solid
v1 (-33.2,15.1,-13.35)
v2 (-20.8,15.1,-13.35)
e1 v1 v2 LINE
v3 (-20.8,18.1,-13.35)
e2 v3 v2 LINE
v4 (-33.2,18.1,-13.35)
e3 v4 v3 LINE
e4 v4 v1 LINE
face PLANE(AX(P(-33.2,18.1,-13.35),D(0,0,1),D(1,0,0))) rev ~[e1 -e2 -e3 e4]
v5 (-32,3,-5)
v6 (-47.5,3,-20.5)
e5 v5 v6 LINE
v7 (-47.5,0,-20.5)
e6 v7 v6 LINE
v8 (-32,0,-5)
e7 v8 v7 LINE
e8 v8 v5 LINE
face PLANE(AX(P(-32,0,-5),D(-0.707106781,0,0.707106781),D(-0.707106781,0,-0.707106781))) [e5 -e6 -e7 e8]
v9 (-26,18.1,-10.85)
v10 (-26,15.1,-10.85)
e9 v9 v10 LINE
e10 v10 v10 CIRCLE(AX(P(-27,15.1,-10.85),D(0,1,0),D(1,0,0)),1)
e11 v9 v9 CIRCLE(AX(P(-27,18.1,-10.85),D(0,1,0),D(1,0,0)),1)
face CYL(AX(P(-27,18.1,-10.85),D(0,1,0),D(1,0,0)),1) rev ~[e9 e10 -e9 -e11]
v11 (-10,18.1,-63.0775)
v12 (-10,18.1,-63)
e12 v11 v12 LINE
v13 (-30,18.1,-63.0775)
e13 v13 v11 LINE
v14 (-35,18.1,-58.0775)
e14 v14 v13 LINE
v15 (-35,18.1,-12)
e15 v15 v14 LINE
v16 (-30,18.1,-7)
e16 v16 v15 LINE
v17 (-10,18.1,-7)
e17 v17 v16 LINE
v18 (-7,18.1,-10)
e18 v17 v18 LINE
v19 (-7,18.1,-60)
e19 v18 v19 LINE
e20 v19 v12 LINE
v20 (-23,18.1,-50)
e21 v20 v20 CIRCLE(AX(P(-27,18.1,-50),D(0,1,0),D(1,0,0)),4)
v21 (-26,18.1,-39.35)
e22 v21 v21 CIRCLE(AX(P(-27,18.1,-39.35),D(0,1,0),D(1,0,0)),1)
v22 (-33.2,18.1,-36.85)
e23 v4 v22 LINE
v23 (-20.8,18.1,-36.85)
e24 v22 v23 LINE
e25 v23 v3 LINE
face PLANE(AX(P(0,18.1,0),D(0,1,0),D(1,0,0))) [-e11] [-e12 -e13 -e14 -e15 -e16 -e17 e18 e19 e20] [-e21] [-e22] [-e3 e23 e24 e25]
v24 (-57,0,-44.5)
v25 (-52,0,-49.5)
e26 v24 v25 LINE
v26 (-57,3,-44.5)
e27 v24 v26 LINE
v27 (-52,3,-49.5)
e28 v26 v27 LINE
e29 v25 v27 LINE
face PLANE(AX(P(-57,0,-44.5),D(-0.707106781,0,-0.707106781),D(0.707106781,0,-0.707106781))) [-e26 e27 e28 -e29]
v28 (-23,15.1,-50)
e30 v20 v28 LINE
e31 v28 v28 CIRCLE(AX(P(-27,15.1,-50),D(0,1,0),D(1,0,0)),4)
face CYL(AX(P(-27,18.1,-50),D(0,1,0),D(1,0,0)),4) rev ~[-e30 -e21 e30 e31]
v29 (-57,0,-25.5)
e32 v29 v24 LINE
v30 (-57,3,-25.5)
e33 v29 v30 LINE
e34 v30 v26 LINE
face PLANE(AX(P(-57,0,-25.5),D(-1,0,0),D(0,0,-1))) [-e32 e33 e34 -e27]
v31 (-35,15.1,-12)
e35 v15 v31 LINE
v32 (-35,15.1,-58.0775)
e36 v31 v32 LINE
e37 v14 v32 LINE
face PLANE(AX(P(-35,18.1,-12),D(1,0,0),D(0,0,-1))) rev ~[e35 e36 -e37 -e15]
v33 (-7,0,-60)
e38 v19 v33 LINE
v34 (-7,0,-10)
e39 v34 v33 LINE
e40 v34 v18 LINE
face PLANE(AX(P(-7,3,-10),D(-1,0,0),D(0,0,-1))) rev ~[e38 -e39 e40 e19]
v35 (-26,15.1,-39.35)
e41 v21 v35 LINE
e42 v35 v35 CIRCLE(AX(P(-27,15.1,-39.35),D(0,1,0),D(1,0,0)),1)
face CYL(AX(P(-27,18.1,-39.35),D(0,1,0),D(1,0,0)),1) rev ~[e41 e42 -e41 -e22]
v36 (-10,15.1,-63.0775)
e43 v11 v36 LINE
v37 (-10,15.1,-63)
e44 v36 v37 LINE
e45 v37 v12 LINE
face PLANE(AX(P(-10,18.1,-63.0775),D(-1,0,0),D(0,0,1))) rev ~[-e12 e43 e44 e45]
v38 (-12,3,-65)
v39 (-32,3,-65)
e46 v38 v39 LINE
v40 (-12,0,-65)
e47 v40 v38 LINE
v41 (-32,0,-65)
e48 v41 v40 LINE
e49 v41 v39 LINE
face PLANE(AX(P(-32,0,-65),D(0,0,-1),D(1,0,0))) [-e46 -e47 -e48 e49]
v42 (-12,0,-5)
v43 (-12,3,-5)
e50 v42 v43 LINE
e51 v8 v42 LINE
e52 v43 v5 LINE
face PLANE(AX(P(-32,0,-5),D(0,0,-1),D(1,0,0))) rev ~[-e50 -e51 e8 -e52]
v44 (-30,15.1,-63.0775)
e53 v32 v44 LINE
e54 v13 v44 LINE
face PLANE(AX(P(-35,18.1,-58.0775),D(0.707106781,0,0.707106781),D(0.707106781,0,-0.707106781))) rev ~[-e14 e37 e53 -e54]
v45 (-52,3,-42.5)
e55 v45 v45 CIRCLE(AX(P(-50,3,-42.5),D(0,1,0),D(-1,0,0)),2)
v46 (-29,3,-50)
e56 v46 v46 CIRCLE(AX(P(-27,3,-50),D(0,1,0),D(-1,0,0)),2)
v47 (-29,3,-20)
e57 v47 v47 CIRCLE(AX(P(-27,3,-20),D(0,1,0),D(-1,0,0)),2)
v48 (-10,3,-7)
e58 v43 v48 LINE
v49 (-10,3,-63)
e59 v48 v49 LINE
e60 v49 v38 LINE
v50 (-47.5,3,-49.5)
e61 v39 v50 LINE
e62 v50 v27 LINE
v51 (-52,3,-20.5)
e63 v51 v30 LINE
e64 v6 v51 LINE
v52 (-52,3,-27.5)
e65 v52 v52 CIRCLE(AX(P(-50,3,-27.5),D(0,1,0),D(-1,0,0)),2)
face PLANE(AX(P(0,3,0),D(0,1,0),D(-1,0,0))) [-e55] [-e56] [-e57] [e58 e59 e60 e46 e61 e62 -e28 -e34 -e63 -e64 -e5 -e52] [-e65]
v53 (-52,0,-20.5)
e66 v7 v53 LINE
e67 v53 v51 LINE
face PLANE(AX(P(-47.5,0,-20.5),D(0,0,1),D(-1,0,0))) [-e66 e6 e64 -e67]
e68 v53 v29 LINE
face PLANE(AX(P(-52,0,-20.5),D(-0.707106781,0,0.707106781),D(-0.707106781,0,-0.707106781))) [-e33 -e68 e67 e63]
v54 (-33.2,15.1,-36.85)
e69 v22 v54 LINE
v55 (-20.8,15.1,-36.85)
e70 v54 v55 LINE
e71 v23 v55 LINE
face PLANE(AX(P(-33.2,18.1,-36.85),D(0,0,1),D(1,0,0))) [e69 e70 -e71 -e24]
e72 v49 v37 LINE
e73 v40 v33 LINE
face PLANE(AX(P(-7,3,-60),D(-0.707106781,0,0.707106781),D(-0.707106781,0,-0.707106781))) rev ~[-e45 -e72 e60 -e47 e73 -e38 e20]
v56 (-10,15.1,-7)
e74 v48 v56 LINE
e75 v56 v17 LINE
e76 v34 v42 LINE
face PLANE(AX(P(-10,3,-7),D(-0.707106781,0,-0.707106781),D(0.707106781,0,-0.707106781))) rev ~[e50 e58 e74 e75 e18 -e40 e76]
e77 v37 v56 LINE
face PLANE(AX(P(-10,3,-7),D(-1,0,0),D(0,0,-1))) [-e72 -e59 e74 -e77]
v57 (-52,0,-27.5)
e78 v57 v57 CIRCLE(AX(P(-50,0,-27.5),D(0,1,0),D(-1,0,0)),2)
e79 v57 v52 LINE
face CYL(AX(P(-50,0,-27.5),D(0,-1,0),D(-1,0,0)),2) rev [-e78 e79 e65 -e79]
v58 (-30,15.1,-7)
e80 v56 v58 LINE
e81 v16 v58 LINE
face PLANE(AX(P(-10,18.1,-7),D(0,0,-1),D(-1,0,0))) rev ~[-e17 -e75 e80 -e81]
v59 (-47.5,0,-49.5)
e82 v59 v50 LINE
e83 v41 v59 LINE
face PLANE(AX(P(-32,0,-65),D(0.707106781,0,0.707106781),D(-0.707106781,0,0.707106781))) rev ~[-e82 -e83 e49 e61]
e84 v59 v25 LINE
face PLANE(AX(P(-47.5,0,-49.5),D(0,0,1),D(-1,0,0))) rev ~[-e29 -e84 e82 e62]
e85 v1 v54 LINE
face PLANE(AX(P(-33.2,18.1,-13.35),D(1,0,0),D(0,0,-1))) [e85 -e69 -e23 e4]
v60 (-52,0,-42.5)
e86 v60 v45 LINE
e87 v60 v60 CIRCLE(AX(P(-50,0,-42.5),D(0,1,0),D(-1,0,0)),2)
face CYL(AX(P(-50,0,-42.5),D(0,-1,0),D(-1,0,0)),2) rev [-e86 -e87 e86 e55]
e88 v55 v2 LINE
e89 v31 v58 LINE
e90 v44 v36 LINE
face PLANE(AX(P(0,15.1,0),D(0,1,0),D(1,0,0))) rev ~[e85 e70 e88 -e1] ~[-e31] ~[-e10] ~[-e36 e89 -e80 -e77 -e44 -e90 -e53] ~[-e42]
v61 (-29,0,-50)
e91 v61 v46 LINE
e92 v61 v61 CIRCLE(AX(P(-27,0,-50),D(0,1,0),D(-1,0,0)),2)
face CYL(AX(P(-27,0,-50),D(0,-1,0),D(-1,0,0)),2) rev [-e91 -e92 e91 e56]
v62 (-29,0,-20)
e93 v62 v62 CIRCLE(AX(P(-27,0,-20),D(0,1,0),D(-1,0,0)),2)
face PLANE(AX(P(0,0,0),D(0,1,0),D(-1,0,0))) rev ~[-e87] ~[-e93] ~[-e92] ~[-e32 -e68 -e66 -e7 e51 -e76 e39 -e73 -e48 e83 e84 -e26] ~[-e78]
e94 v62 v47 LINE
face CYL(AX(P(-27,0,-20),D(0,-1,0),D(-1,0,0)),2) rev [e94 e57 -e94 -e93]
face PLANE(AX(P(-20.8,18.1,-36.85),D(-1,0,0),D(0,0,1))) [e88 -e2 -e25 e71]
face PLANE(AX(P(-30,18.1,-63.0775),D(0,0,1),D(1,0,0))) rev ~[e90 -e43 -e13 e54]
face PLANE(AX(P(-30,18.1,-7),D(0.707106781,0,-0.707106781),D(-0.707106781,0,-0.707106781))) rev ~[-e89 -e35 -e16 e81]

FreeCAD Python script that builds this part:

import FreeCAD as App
import Part
import Sketcher

V = App.Vector

doc = App.newDocument("Part")
body = doc.addObject("PartDesign::Body", "Body")

# Sketch on XZ plane
sketch1 = body.newObject("Sketcher::SketchObject", "Sketch")
sketch1.AttachmentSupport = (doc.getObject("XZ_Plane"), [""])
sketch1.MapMode = "FlatFace"
sketch1.addGeometry(Part.LineSegment(V(-32, -5, 0), V(-12, -5, 0)), False)
sketch1.addGeometry(Part.LineSegment(V(-12, -5, 0), V(-7, -10, 0)), False)
sketch1.addGeometry(Part.LineSegment(V(-7, -10, 0), V(-7, -60, 0)), False)
sketch1.addGeometry(Part.LineSegment(V(-7, -60, 0), V(-12, -65, 0)), False)
sketch1.addGeometry(Part.LineSegment(V(-12, -65, 0), V(-32, -65, 0)), False)
sketch1.addGeometry(Part.LineSegment(V(-32, -65, 0), V(-47.5, -49.5, 0)), False)
sketch1.addGeometry(Part.LineSegment(V(-47.5, -49.5, 0), V(-52, -49.5, 0)), False)
sketch1.addGeometry(Part.LineSegment(V(-52, -49.5, 0), V(-57, -44.5, 0)), False)
sketch1.addGeometry(Part.LineSegment(V(-57, -44.5, 0), V(-57, -25.5, 0)), False)
sketch1.addGeometry(Part.LineSegment(V(-57, -25.5, 0), V(-52, -20.5, 0)), False)
sketch1.addGeometry(Part.LineSegment(V(-52, -20.5, 0), V(-47.5, -20.5, 0)), False)
sketch1.addGeometry(Part.LineSegment(V(-47.5, -20.5, 0), V(-32, -5, 0)), False)
sketch1.addGeometry(Part.Circle(V(-27, -50, 0), V(0, 0, 1), 2), False)
sketch1.addGeometry(Part.Circle(V(-50, -42.5, 0), V(0, 0, 1), 2), False)
sketch1.addGeometry(Part.Circle(V(-27, -20, 0), V(0, 0, 1), 2), False)
sketch1.addGeometry(Part.Circle(V(-50, -27.5, 0), V(0, 0, 1), 2), False)
sketch1.addConstraint(Sketcher.Constraint("Coincident", 0, 2, 1, 1))
sketch1.addConstraint(Sketcher.Constraint("Coincident", 1, 2, 2, 1))
sketch1.addConstraint(Sketcher.Constraint("Coincident", 2, 2, 3, 1))
sketch1.addConstraint(Sketcher.Constraint("Coincident", 3, 2, 4, 1))
sketch1.addConstraint(Sketcher.Constraint("Coincident", 4, 2, 5, 1))
sketch1.addConstraint(Sketcher.Constraint("Coincident", 5, 2, 6, 1))
sketch1.addConstraint(Sketcher.Constraint("Coincident", 6, 2, 7, 1))
sketch1.addConstraint(Sketcher.Constraint("Coincident", 7, 2, 8, 1))
sketch1.addConstraint(Sketcher.Constraint("Coincident", 8, 2, 9, 1))
sketch1.addConstraint(Sketcher.Constraint("Coincident", 9, 2, 10, 1))
sketch1.addConstraint(Sketcher.Constraint("Coincident", 10, 2, 11, 1))
sketch1.addConstraint(Sketcher.Constraint("Coincident", 11, 2, 0, 1))
sketch1.addConstraint(Sketcher.Constraint("Horizontal", 0))
sketch1.addConstraint(Sketcher.Constraint("Vertical", 2))
sketch1.addConstraint(Sketcher.Constraint("Horizontal", 4))
sketch1.addConstraint(Sketcher.Constraint("Horizontal", 6))
sketch1.addConstraint(Sketcher.Constraint("Vertical", 8))
sketch1.addConstraint(Sketcher.Constraint("Horizontal", 10))
sketch1.addConstraint(Sketcher.Constraint("Equal", 12, 13))
sketch1.addConstraint(Sketcher.Constraint("Equal", 13, 14))
sketch1.addConstraint(Sketcher.Constraint("Equal", 14, 15))
sketch1.addConstraint(Sketcher.Constraint("Perpendicular", 1, 3))
sketch1.addConstraint(Sketcher.Constraint("Perpendicular", 3, 5))
sketch1.addConstraint(Sketcher.Constraint("Parallel", 5, 7))
sketch1.addConstraint(Sketcher.Constraint("Perpendicular", 7, 9))
sketch1.addConstraint(Sketcher.Constraint("Parallel", 9, 11))
sketch1.addConstraint(Sketcher.Constraint("Vertical", 12, 3, 14, 3))
sketch1.addConstraint(Sketcher.Constraint("Vertical", 13, 3, 15, 3))
sketch1.addConstraint(Sketcher.Constraint("Vertical", 0, 2, 3, 2))
sketch1.addConstraint(Sketcher.Constraint("Vertical", 6, 2, 9, 2))
sketch1.addConstraint(Sketcher.Constraint("Vertical", 5, 2, 10, 2))
sketch1.addConstraint(Sketcher.Constraint("Vertical", 4, 2, 11, 2))
sketch1.addConstraint(Sketcher.Constraint("Equal", 1, 3))
sketch1.addConstraint(Sketcher.Constraint("Equal", 3, 7))
sketch1.addConstraint(Sketcher.Constraint("Diameter", 12, 4.0))
sketch1.addConstraint(Sketcher.Constraint("DistanceX", 0, 1, 0, 2, 20.0))
sketch1.addConstraint(Sketcher.Constraint("DistanceY", 14, 3, -1, 1, 20.0))
sketch1.addConstraint(Sketcher.Constraint("DistanceY", 0, 2, -1, 1, 5.0))
sketch1.addConstraint(Sketcher.Constraint("DistanceX", 1, 2, -1, 1, 7.0))
sketch1.addConstraint(Sketcher.Constraint("DistanceX", 7, 2, -1, 1, 57.0))
sketch1.addConstraint(Sketcher.Constraint("DistanceY", 12, 3, 14, 3, 30.0))
sketch1.addConstraint(Sketcher.Constraint("DistanceY", 13, 3, 15, 3, 15.0))
sketch1.addConstraint(Sketcher.Constraint("DistanceX", 14, 3, 0, 2, 15.0))
sketch1.addConstraint(Sketcher.Constraint("DistanceX", 0, 2, 1, 2, 5.0))
sketch1.addConstraint(Sketcher.Constraint("DistanceY", 3, 2, 12, 3, 15.0))
sketch1.addConstraint(Sketcher.Constraint("DistanceY", 5, 2, 13, 3, 7.0))
sketch1.addConstraint(Sketcher.Constraint("DistanceX", 7, 2, 13, 3, 7.0))
sketch1.addConstraint(Sketcher.Constraint("DistanceY", 15, 3, 9, 2, 7.0))
pad1 = body.newObject("PartDesign::Pad", "Pad")
pad1.Profile = sketch1
pad1.Length = 3
pad1.Reversed = True

# Sketch on XZ plane
sketch2 = body.newObject("Sketcher::SketchObject", "Sketch001")
sketch2.AttachmentSupport = (doc.getObject("XZ_Plane"), [""])
sketch2.MapMode = "FlatFace"
sketch2.AttachmentOffset = App.Placement(V(0, 0, -3), App.Rotation())
sketch2.addGeometry(Part.LineSegment(V(-10, -63, 0), V(-10, -7, 0)), False)
sketch2.addGeometry(Part.LineSegment(V(-10, -7, 0), V(-7, -10, 0)), False)
sketch2.addGeometry(Part.LineSegment(V(-7, -10, 0), V(-7, -60, 0)), False)
sketch2.addGeometry(Part.LineSegment(V(-7, -60, 0), V(-10, -63, 0)), False)
sketch2.addConstraint(Sketcher.Constraint("Coincident", 0, 2, 1, 1))
sketch2.addConstraint(Sketcher.Constraint("Coincident", 1, 2, 2, 1))
sketch2.addConstraint(Sketcher.Constraint("Coincident", 2, 2, 3, 1))
sketch2.addConstraint(Sketcher.Constraint("Coincident", 3, 2, 0, 1))
sketch2.addConstraint(Sketcher.Constraint("Vertical", 0))
sketch2.addConstraint(Sketcher.Constraint("Vertical", 2))
sketch2.addConstraint(Sketcher.Constraint("Perpendicular", 1, 3))
sketch2.addConstraint(Sketcher.Constraint("Equal", 1, 3))
sketch2.addConstraint(Sketcher.Constraint("DistanceX", 0, 2, 1, 2, 3.0))
sketch2.addConstraint(Sketcher.Constraint("DistanceY", 0, 1, 0, 2, 56.0))
sketch2.addConstraint(Sketcher.Constraint("DistanceX", 0, 2, -1, 1, 10.0))
sketch2.addConstraint(Sketcher.Constraint("DistanceY", 0, 2, -1, 1, 7.0))
pad2 = body.newObject("PartDesign::Pad", "Pad001")
pad2.Profile = sketch2
pad2.Length = 15.1
pad2.Reversed = True

# Sketch on XZ plane
sketch3 = body.newObject("Sketcher::SketchObject", "Sketch002")
sketch3.AttachmentSupport = (doc.getObject("XZ_Plane"), [""])
sketch3.MapMode = "FlatFace"
sketch3.AttachmentOffset = App.Placement(V(0, 0, -18.1), App.Rotation())
sketch3.addGeometry(Part.LineSegment(V(-30, -7, 0), V(-10, -7, 0)), False)
sketch3.addGeometry(Part.LineSegment(V(-10, -7, 0), V(-10, -63.1, 0)), False)
sketch3.addGeometry(Part.LineSegment(V(-10, -63.1, 0), V(-30, -63.1, 0)), False)
sketch3.addGeometry(Part.LineSegment(V(-30, -63.1, 0), V(-35, -58.1, 0)), False)
sketch3.addGeometry(Part.LineSegment(V(-35, -58.1, 0), V(-35, -12, 0)), False)
sketch3.addGeometry(Part.LineSegment(V(-35, -12, 0), V(-30, -7, 0)), False)
sketch3.addGeometry(Part.LineSegment(V(-20.8, -36.9, 0), V(-20.8, -13.3, 0)), False)
sketch3.addGeometry(Part.LineSegment(V(-20.8, -13.3, 0), V(-33.2, -13.3, 0)), False)
sketch3.addGeometry(Part.LineSegment(V(-33.2, -13.3, 0), V(-33.2, -36.9, 0)), False)
sketch3.addGeometry(Part.LineSegment(V(-33.2, -36.9, 0), V(-20.8, -36.9, 0)), False)
sketch3.addGeometry(Part.Circle(V(-27, -50, 0), V(0, 0, 1), 4), False)
sketch3.addGeometry(Part.Circle(V(-27, -10.8, 0), V(0, 0, 1), 1), False)
sketch3.addGeometry(Part.Circle(V(-27, -39.4, 0), V(0, 0, 1), 1), False)
sketch3.addConstraint(Sketcher.Constraint("Coincident", 0, 2, 1, 1))
sketch3.addConstraint(Sketcher.Constraint("Coincident", 1, 2, 2, 1))
sketch3.addConstraint(Sketcher.Constraint("Coincident", 2, 2, 3, 1))
sketch3.addConstraint(Sketcher.Constraint("Coincident", 3, 2, 4, 1))
sketch3.addConstraint(Sketcher.Constraint("Coincident", 4, 2, 5, 1))
sketch3.addConstraint(Sketcher.Constraint("Coincident", 5, 2, 0, 1))
sketch3.addConstraint(Sketcher.Constraint("Coincident", 6, 2, 7, 1))
sketch3.addConstraint(Sketcher.Constraint("Coincident", 7, 2, 8, 1))
sketch3.addConstraint(Sketcher.Constraint("Coincident", 8, 2, 9, 1))
sketch3.addConstraint(Sketcher.Constraint("Coincident", 9, 2, 6, 1))
sketch3.addConstraint(Sketcher.Constraint("Horizontal", 0))
sketch3.addConstraint(Sketcher.Constraint("Vertical", 1))
sketch3.addConstraint(Sketcher.Constraint("Horizontal", 2))
sketch3.addConstraint(Sketcher.Constraint("Vertical", 4))
sketch3.addConstraint(Sketcher.Constraint("Vertical", 6))
sketch3.addConstraint(Sketcher.Constraint("Horizontal", 7))
sketch3.addConstraint(Sketcher.Constraint("Vertical", 8))
sketch3.addConstraint(Sketcher.Constraint("Horizontal", 9))
sketch3.addConstraint(Sketcher.Constraint("Equal", 11, 12))
sketch3.addConstraint(Sketcher.Constraint("Perpendicular", 3, 5))
sketch3.addConstraint(Sketcher.Constraint("Vertical", 10, 3, 11, 3))
sketch3.addConstraint(Sketcher.Constraint("Vertical", 11, 3, 12, 3))
sketch3.addConstraint(Sketcher.Constraint("Vertical", 2, 2, 5, 2))
sketch3.addConstraint(Sketcher.Constraint("Equal", 3, 5))
sketch3.addConstraint(Sketcher.Constraint("Diameter", 10, 8.0))
sketch3.addConstraint(Sketcher.Constraint("Diameter", 11, 2.0))
sketch3.addConstraint(Sketcher.Constraint("DistanceX", 3, 2, 2, 2, 5.0))
sketch3.addConstraint(Sketcher.Constraint("DistanceX", 3, 2, 10, 3, 8.0))
sketch3.addConstraint(Sketcher.Constraint("DistanceX", 3, 2, 1, 2, 25.0))
sketch3.addConstraint(Sketcher.Constraint("DistanceX", 7, 2, 7, 1, 12.4))
sketch3.addConstraint(Sketcher.Constraint("DistanceY", 1, 2, 1, 1, 56.0775))
sketch3.addConstraint(Sketcher.Constraint("DistanceY", 6, 1, 6, 2, 23.5))
sketch3.addConstraint(Sketcher.Constraint("DistanceX", 10, 3, -1, 1, 27.0))
sketch3.addConstraint(Sketcher.Constraint("DistanceY", 10, 3, -1, 1, 50.0))
sketch3.addConstraint(Sketcher.Constraint("DistanceY", 0, 2, -1, 1, 7.0))
sketch3.addConstraint(Sketcher.Constraint("DistanceY", 12, 3, 6, 2, 26.0))
sketch3.addConstraint(Sketcher.Constraint("DistanceX", 6, 2, -1, 1, 20.8))
sketch3.addConstraint(Sketcher.Constraint("DistanceY", 12, 3, 11, 3, 28.5))
sketch3.addConstraint(Sketcher.Constraint("DistanceY", 11, 3, -1, 1, 10.85))
pad3 = body.newObject("PartDesign::Pad", "Pad002")
pad3.Profile = sketch3
pad3.Length = 3

doc.recompute()
